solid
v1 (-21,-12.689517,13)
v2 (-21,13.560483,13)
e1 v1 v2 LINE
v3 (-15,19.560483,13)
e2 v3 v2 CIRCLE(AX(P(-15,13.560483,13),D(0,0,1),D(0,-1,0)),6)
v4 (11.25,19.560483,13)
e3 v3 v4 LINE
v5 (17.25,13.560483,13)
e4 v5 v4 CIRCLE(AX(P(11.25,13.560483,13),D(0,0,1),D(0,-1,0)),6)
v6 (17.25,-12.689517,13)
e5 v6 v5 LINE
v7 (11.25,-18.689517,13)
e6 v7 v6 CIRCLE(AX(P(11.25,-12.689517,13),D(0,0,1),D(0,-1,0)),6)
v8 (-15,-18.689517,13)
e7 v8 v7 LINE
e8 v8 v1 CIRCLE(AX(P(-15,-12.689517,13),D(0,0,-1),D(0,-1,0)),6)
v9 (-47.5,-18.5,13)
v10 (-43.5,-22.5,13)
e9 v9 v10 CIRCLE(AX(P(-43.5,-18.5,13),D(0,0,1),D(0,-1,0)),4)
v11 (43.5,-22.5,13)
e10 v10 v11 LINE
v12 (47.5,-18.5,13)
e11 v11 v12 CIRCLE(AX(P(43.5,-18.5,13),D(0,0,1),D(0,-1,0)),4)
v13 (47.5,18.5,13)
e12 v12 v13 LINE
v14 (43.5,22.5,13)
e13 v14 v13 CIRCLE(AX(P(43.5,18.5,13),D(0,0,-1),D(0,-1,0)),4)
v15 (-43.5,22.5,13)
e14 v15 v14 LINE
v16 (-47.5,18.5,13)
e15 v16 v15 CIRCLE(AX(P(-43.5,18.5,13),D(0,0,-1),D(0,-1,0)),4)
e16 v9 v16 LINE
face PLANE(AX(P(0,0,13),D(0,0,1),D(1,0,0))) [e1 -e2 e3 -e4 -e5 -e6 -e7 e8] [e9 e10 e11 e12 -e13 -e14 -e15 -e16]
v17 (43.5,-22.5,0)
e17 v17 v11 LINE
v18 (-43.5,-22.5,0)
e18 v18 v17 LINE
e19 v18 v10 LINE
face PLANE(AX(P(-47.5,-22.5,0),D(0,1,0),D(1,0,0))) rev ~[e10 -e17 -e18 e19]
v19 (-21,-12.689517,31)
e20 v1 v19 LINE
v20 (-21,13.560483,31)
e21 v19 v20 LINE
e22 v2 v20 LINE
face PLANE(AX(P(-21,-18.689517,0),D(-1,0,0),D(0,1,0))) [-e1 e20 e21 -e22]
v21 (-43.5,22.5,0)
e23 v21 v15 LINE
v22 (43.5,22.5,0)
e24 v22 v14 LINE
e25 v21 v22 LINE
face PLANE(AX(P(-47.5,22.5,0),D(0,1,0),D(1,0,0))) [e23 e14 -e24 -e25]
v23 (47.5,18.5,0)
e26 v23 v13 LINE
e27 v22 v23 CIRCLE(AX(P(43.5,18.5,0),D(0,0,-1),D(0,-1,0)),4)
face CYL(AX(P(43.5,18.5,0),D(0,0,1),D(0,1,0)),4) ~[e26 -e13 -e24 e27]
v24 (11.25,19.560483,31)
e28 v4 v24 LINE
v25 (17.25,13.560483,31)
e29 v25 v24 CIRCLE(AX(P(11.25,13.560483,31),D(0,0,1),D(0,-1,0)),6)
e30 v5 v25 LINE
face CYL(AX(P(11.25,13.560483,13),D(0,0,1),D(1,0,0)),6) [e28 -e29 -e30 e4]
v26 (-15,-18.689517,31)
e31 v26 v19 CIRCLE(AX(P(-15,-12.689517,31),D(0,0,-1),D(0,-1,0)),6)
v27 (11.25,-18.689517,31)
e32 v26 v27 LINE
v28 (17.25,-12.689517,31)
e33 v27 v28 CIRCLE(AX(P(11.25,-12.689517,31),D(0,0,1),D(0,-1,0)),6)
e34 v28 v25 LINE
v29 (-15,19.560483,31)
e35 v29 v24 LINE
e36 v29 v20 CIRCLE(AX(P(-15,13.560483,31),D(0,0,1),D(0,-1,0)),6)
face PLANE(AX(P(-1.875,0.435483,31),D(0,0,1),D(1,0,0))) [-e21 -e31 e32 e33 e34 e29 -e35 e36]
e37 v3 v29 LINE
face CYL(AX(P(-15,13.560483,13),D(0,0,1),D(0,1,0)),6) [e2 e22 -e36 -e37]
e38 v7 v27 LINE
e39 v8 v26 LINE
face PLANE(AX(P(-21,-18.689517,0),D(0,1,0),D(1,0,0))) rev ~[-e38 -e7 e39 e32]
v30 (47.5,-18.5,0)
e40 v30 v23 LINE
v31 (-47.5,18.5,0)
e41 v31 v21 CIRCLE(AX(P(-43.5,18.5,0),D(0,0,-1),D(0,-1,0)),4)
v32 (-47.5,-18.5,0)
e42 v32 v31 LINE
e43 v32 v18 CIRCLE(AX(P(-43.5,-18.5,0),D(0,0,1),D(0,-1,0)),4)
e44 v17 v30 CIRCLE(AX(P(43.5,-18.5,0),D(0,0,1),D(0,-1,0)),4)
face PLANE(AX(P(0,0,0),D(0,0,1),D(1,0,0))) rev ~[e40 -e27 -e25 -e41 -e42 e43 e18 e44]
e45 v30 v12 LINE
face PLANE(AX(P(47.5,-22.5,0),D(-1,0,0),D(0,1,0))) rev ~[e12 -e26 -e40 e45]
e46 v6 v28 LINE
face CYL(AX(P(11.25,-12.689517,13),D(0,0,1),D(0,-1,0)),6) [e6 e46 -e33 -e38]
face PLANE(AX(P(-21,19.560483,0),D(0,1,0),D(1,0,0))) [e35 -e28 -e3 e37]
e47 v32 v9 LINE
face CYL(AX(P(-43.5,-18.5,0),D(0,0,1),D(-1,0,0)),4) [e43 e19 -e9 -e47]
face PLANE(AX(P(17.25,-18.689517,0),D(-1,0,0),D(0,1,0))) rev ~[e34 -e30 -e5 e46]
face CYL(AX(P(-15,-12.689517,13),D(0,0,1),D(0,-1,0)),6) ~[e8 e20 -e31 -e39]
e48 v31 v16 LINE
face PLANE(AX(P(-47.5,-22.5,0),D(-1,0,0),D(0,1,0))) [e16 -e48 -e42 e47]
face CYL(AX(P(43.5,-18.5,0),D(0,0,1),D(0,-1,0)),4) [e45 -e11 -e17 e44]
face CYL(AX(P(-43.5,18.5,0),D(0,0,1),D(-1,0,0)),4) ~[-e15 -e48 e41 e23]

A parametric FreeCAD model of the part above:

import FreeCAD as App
import Part
import Sketcher
from FreeCAD import Vector


def edges_at(feature, points):
    """Names of the edges that pass closest to the given points."""
    edges = feature.Shape.Edges
    near = lambda p: min(range(len(edges)), key=lambda i: edges[i].distToShape(Part.Vertex(*p))[0])
    return sorted({f"Edge{near(p) + 1}" for p in points})

doc = App.newDocument("Part")
body = doc.addObject("PartDesign::Body", "Body")

sketch1 = body.newObject("Sketcher::SketchObject", "Sketch")
sketch1.AttachmentSupport = (doc.getObject("XY_Plane"), [""])
sketch1.MapMode = "FlatFace"
sketch1.addGeometry(Part.LineSegment(Vector(-21, 20, 0), Vector(-21, -19, 0)), False)
sketch1.addGeometry(Part.LineSegment(Vector(-21, -19, 0), Vector(17, -19, 0)), False)
sketch1.addGeometry(Part.LineSegment(Vector(17, -19, 0), Vector(17, 20, 0)), False)
sketch1.addGeometry(Part.LineSegment(Vector(17, 20, 0), Vector(-21, 20, 0)), False)
sketch1.addConstraint(Sketcher.Constraint("Coincident", 0, 2, 1, 1))
sketch1.addConstraint(Sketcher.Constraint("Coincident", 1, 2, 2, 1))
sketch1.addConstraint(Sketcher.Constraint("Coincident", 2, 2, 3, 1))
sketch1.addConstraint(Sketcher.Constraint("Coincident", 3, 2, 0, 1))
sketch1.addConstraint(Sketcher.Constraint("Vertical", 0))
sketch1.addConstraint(Sketcher.Constraint("Horizontal", 1))
sketch1.addConstraint(Sketcher.Constraint("Vertical", 2))
sketch1.addConstraint(Sketcher.Constraint("Horizontal", 3))
sketch1.addConstraint(Sketcher.Constraint("Equal", 3, 0))
sketch1.addConstraint(Sketcher.Constraint("DistanceX", 0, 2, -1, 1, 21.0))
sketch1.addConstraint(Sketcher.Constraint("DistanceX", 1, 1, 1, 2, 38.25))
sketch1.addConstraint(Sketcher.Constraint("DistanceY", 0, 2, -1, 1, 18.689517))
pad1 = body.newObject("PartDesign::Pad", "Pad")
pad1.Profile = sketch1
pad1.Length = 31

sketch2 = body.newObject("Sketcher::SketchObject", "Sketch001")
sketch2.AttachmentSupport = (doc.getObject("XY_Plane"), [""])
sketch2.MapMode = "FlatFace"
sketch2.addGeometry(Part.LineSegment(Vector(-48, 22, 0), Vector(-48, -22, 0)), False)
sketch2.addGeometry(Part.LineSegment(Vector(-48, -22, 0), Vector(48, -22, 0)), False)
sketch2.addGeometry(Part.LineSegment(Vector(48, -22, 0), Vector(48, 22, 0)), False)
sketch2.addGeometry(Part.LineSegment(Vector(48, 22, 0), Vector(-48, 22, 0)), False)
sketch2.addGeometry(Part.LineSegment(Vector(17, -19, 0), Vector(-21, -19, 0)), False)
sketch2.addGeometry(Part.LineSegment(Vector(-21, -19, 0), Vector(-21, 20, 0)), False)
sketch2.addGeometry(Part.LineSegment(Vector(-21, 20, 0), Vector(17, 20, 0)), False)
sketch2.addGeometry(Part.LineSegment(Vector(17, 20, 0), Vector(17, -19, 0)), False)
sketch2.addConstraint(Sketcher.Constraint("Coincident", 0, 2, 1, 1))
sketch2.addConstraint(Sketcher.Constraint("Coincident", 1, 2, 2, 1))
sketch2.addConstraint(Sketcher.Constraint("Coincident", 2, 2, 3, 1))
sketch2.addConstraint(Sketcher.Constraint("Coincident", 3, 2, 0, 1))
sketch2.addConstraint(Sketcher.Constraint("Coincident", 4, 2, 5, 1))
sketch2.addConstraint(Sketcher.Constraint("Coincident", 5, 2, 6, 1))
sketch2.addConstraint(Sketcher.Constraint("Coincident", 6, 2, 7, 1))
sketch2.addConstraint(Sketcher.Constraint("Coincident", 7, 2, 4, 1))
sketch2.addConstraint(Sketcher.Constraint("Vertical", 0))
sketch2.addConstraint(Sketcher.Constraint("Horizontal", 1))
sketch2.addConstraint(Sketcher.Constraint("Vertical", 2))
sketch2.addConstraint(Sketcher.Constraint("Horizontal", 3))
sketch2.addConstraint(Sketcher.Constraint("Horizontal", 4))
sketch2.addConstraint(Sketcher.Constraint("Vertical", 5))
sketch2.addConstraint(Sketcher.Constraint("Horizontal", 6))
sketch2.addConstraint(Sketcher.Constraint("Vertical", 7))
sketch2.addConstraint(Sketcher.Constraint("Symmetric", 0, 2, 2, 2, -1, 1))
sketch2.addConstraint(Sketcher.Constraint("Equal", 6, 5))
sketch2.addConstraint(Sketcher.Constraint("DistanceX", 1, 1, 1, 2, 95.0))
sketch2.addConstraint(Sketcher.Constraint("DistanceY", 0, 2, 0, 1, 45.0))
sketch2.addConstraint(Sketcher.Constraint("DistanceX", 4, 2, -1, 1, 21.0))
sketch2.addConstraint(Sketcher.Constraint("DistanceX", 4, 2, 4, 1, 38.25))
sketch2.addConstraint(Sketcher.Constraint("DistanceY", 4, 2, -1, 1, 18.689517))
pad2 = body.newObject("PartDesign::Pad", "Pad001")
pad2.Profile = sketch2
pad2.Length = 13
doc.recompute()

fillet = body.newObject("PartDesign::Fillet", "Fillet")
fillet.Base = (pad2, edges_at(pad2, [
    (-21, 19.56, 22),
    (-21, -18.69, 22),
    (17.25, -18.69, 22),
    (17.25, 19.56, 22),
]))
fillet.Radius = 6
doc.recompute()

fillet2 = body.newObject("PartDesign::Fillet", "Fillet001")
fillet2.Base = (fillet, edges_at(fillet, [
    (47.5, -22.5, 6.5),
    (47.5, 22.5, 6.5),
    (-47.5, -22.5, 6.5),
    (-47.5, 22.5, 6.5),
]))
fillet2.Radius = 4

doc.recompute()
